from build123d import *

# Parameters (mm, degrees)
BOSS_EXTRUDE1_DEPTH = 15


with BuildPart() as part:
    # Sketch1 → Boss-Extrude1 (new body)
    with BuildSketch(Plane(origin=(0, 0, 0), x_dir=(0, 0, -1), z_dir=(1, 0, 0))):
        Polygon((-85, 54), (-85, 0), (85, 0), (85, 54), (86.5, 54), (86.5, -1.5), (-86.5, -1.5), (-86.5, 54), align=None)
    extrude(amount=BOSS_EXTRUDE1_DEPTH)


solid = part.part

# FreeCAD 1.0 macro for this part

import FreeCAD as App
import Part
import Sketcher
Q = App.Units.Quantity


def add_polygon(sketch, points):
    """Adds a closed chain of lines whose ends are joined by coincident constraints."""
    first, n = sketch.GeometryCount, len(points)
    for a, b in zip(points, points[1:] + points[:1]):
        sketch.addGeometry(Part.LineSegment(App.Vector(*a, 0), App.Vector(*b, 0)), False)
    for i in range(n):
        sketch.addConstraint(Sketcher.Constraint("Coincident", first + i, 2, first + (i + 1) % n, 1))

doc = App.newDocument("Part")
params = doc.addObject("Spreadsheet::Sheet", "Params")
for row, (alias, value) in enumerate([
    ("sketch1_width", "54 mm"),
    ("sketch1_height", "173 mm"),
    ("sketch1_height2", "170 mm"),
    ("sketch1_width2", "55.5 mm"),
    ("pad1_length", "15 mm"),
], start=1):
    params.set(f"A{row}", alias)
    params.set(f"B{row}", "=" + value)
    params.setAlias(f"B{row}", alias)

body = doc.addObject("PartDesign::Body", "Body")

# Sketch on YZ plane
sketch1 = body.newObject("Sketcher::SketchObject", "Sketch")
sketch1.AttachmentSupport = (doc.getObject("YZ_Plane"), [""])
sketch1.MapMode = "FlatFace"
add_polygon(sketch1, [(0, 85), (54, 85), (54, 86.5), (-1.5, 86.5), (-1.5, -86.5), (54, -86.5), (54, -85), (0, -85)])  # lines 0-7
sketch1.addConstraint([
    Sketcher.Constraint("Horizontal", 0),
    Sketcher.Constraint("Vertical", 1),
    Sketcher.Constraint("Horizontal", 2),
    Sketcher.Constraint("Vertical", 3),
    Sketcher.Constraint("Horizontal", 4),
    Sketcher.Constraint("Vertical", 5),
    Sketcher.Constraint("Horizontal", 6),
    Sketcher.Constraint("Vertical", 7),
    Sketcher.Constraint("Symmetric", 6, 2, 7, 2, -1, 1),
    Sketcher.Constraint("Symmetric", 1, 2, 4, 2, -1),
    Sketcher.Constraint("DistanceX", 0, 1, 0, 2, Q("54 mm")),
    Sketcher.Constraint("DistanceY", 3, 2, 3, 1, Q("173 mm")),
    Sketcher.Constraint("DistanceY", 7, 1, 7, 2, Q("170 mm")),
    Sketcher.Constraint("DistanceX", 2, 2, 2, 1, Q("55.5 mm")),
])
sketch1.setExpression("Constraints[18]", "Params.sketch1_width")
sketch1.setExpression("Constraints[19]", "Params.sketch1_height")
sketch1.setExpression("Constraints[20]", "Params.sketch1_height2")
sketch1.setExpression("Constraints[21]", "Params.sketch1_width2")
pad1 = body.newObject("PartDesign::Pad", "Pad")
pad1.Profile = sketch1
pad1.setExpression("Length", "Params.pad1_length")

doc.recompute()
